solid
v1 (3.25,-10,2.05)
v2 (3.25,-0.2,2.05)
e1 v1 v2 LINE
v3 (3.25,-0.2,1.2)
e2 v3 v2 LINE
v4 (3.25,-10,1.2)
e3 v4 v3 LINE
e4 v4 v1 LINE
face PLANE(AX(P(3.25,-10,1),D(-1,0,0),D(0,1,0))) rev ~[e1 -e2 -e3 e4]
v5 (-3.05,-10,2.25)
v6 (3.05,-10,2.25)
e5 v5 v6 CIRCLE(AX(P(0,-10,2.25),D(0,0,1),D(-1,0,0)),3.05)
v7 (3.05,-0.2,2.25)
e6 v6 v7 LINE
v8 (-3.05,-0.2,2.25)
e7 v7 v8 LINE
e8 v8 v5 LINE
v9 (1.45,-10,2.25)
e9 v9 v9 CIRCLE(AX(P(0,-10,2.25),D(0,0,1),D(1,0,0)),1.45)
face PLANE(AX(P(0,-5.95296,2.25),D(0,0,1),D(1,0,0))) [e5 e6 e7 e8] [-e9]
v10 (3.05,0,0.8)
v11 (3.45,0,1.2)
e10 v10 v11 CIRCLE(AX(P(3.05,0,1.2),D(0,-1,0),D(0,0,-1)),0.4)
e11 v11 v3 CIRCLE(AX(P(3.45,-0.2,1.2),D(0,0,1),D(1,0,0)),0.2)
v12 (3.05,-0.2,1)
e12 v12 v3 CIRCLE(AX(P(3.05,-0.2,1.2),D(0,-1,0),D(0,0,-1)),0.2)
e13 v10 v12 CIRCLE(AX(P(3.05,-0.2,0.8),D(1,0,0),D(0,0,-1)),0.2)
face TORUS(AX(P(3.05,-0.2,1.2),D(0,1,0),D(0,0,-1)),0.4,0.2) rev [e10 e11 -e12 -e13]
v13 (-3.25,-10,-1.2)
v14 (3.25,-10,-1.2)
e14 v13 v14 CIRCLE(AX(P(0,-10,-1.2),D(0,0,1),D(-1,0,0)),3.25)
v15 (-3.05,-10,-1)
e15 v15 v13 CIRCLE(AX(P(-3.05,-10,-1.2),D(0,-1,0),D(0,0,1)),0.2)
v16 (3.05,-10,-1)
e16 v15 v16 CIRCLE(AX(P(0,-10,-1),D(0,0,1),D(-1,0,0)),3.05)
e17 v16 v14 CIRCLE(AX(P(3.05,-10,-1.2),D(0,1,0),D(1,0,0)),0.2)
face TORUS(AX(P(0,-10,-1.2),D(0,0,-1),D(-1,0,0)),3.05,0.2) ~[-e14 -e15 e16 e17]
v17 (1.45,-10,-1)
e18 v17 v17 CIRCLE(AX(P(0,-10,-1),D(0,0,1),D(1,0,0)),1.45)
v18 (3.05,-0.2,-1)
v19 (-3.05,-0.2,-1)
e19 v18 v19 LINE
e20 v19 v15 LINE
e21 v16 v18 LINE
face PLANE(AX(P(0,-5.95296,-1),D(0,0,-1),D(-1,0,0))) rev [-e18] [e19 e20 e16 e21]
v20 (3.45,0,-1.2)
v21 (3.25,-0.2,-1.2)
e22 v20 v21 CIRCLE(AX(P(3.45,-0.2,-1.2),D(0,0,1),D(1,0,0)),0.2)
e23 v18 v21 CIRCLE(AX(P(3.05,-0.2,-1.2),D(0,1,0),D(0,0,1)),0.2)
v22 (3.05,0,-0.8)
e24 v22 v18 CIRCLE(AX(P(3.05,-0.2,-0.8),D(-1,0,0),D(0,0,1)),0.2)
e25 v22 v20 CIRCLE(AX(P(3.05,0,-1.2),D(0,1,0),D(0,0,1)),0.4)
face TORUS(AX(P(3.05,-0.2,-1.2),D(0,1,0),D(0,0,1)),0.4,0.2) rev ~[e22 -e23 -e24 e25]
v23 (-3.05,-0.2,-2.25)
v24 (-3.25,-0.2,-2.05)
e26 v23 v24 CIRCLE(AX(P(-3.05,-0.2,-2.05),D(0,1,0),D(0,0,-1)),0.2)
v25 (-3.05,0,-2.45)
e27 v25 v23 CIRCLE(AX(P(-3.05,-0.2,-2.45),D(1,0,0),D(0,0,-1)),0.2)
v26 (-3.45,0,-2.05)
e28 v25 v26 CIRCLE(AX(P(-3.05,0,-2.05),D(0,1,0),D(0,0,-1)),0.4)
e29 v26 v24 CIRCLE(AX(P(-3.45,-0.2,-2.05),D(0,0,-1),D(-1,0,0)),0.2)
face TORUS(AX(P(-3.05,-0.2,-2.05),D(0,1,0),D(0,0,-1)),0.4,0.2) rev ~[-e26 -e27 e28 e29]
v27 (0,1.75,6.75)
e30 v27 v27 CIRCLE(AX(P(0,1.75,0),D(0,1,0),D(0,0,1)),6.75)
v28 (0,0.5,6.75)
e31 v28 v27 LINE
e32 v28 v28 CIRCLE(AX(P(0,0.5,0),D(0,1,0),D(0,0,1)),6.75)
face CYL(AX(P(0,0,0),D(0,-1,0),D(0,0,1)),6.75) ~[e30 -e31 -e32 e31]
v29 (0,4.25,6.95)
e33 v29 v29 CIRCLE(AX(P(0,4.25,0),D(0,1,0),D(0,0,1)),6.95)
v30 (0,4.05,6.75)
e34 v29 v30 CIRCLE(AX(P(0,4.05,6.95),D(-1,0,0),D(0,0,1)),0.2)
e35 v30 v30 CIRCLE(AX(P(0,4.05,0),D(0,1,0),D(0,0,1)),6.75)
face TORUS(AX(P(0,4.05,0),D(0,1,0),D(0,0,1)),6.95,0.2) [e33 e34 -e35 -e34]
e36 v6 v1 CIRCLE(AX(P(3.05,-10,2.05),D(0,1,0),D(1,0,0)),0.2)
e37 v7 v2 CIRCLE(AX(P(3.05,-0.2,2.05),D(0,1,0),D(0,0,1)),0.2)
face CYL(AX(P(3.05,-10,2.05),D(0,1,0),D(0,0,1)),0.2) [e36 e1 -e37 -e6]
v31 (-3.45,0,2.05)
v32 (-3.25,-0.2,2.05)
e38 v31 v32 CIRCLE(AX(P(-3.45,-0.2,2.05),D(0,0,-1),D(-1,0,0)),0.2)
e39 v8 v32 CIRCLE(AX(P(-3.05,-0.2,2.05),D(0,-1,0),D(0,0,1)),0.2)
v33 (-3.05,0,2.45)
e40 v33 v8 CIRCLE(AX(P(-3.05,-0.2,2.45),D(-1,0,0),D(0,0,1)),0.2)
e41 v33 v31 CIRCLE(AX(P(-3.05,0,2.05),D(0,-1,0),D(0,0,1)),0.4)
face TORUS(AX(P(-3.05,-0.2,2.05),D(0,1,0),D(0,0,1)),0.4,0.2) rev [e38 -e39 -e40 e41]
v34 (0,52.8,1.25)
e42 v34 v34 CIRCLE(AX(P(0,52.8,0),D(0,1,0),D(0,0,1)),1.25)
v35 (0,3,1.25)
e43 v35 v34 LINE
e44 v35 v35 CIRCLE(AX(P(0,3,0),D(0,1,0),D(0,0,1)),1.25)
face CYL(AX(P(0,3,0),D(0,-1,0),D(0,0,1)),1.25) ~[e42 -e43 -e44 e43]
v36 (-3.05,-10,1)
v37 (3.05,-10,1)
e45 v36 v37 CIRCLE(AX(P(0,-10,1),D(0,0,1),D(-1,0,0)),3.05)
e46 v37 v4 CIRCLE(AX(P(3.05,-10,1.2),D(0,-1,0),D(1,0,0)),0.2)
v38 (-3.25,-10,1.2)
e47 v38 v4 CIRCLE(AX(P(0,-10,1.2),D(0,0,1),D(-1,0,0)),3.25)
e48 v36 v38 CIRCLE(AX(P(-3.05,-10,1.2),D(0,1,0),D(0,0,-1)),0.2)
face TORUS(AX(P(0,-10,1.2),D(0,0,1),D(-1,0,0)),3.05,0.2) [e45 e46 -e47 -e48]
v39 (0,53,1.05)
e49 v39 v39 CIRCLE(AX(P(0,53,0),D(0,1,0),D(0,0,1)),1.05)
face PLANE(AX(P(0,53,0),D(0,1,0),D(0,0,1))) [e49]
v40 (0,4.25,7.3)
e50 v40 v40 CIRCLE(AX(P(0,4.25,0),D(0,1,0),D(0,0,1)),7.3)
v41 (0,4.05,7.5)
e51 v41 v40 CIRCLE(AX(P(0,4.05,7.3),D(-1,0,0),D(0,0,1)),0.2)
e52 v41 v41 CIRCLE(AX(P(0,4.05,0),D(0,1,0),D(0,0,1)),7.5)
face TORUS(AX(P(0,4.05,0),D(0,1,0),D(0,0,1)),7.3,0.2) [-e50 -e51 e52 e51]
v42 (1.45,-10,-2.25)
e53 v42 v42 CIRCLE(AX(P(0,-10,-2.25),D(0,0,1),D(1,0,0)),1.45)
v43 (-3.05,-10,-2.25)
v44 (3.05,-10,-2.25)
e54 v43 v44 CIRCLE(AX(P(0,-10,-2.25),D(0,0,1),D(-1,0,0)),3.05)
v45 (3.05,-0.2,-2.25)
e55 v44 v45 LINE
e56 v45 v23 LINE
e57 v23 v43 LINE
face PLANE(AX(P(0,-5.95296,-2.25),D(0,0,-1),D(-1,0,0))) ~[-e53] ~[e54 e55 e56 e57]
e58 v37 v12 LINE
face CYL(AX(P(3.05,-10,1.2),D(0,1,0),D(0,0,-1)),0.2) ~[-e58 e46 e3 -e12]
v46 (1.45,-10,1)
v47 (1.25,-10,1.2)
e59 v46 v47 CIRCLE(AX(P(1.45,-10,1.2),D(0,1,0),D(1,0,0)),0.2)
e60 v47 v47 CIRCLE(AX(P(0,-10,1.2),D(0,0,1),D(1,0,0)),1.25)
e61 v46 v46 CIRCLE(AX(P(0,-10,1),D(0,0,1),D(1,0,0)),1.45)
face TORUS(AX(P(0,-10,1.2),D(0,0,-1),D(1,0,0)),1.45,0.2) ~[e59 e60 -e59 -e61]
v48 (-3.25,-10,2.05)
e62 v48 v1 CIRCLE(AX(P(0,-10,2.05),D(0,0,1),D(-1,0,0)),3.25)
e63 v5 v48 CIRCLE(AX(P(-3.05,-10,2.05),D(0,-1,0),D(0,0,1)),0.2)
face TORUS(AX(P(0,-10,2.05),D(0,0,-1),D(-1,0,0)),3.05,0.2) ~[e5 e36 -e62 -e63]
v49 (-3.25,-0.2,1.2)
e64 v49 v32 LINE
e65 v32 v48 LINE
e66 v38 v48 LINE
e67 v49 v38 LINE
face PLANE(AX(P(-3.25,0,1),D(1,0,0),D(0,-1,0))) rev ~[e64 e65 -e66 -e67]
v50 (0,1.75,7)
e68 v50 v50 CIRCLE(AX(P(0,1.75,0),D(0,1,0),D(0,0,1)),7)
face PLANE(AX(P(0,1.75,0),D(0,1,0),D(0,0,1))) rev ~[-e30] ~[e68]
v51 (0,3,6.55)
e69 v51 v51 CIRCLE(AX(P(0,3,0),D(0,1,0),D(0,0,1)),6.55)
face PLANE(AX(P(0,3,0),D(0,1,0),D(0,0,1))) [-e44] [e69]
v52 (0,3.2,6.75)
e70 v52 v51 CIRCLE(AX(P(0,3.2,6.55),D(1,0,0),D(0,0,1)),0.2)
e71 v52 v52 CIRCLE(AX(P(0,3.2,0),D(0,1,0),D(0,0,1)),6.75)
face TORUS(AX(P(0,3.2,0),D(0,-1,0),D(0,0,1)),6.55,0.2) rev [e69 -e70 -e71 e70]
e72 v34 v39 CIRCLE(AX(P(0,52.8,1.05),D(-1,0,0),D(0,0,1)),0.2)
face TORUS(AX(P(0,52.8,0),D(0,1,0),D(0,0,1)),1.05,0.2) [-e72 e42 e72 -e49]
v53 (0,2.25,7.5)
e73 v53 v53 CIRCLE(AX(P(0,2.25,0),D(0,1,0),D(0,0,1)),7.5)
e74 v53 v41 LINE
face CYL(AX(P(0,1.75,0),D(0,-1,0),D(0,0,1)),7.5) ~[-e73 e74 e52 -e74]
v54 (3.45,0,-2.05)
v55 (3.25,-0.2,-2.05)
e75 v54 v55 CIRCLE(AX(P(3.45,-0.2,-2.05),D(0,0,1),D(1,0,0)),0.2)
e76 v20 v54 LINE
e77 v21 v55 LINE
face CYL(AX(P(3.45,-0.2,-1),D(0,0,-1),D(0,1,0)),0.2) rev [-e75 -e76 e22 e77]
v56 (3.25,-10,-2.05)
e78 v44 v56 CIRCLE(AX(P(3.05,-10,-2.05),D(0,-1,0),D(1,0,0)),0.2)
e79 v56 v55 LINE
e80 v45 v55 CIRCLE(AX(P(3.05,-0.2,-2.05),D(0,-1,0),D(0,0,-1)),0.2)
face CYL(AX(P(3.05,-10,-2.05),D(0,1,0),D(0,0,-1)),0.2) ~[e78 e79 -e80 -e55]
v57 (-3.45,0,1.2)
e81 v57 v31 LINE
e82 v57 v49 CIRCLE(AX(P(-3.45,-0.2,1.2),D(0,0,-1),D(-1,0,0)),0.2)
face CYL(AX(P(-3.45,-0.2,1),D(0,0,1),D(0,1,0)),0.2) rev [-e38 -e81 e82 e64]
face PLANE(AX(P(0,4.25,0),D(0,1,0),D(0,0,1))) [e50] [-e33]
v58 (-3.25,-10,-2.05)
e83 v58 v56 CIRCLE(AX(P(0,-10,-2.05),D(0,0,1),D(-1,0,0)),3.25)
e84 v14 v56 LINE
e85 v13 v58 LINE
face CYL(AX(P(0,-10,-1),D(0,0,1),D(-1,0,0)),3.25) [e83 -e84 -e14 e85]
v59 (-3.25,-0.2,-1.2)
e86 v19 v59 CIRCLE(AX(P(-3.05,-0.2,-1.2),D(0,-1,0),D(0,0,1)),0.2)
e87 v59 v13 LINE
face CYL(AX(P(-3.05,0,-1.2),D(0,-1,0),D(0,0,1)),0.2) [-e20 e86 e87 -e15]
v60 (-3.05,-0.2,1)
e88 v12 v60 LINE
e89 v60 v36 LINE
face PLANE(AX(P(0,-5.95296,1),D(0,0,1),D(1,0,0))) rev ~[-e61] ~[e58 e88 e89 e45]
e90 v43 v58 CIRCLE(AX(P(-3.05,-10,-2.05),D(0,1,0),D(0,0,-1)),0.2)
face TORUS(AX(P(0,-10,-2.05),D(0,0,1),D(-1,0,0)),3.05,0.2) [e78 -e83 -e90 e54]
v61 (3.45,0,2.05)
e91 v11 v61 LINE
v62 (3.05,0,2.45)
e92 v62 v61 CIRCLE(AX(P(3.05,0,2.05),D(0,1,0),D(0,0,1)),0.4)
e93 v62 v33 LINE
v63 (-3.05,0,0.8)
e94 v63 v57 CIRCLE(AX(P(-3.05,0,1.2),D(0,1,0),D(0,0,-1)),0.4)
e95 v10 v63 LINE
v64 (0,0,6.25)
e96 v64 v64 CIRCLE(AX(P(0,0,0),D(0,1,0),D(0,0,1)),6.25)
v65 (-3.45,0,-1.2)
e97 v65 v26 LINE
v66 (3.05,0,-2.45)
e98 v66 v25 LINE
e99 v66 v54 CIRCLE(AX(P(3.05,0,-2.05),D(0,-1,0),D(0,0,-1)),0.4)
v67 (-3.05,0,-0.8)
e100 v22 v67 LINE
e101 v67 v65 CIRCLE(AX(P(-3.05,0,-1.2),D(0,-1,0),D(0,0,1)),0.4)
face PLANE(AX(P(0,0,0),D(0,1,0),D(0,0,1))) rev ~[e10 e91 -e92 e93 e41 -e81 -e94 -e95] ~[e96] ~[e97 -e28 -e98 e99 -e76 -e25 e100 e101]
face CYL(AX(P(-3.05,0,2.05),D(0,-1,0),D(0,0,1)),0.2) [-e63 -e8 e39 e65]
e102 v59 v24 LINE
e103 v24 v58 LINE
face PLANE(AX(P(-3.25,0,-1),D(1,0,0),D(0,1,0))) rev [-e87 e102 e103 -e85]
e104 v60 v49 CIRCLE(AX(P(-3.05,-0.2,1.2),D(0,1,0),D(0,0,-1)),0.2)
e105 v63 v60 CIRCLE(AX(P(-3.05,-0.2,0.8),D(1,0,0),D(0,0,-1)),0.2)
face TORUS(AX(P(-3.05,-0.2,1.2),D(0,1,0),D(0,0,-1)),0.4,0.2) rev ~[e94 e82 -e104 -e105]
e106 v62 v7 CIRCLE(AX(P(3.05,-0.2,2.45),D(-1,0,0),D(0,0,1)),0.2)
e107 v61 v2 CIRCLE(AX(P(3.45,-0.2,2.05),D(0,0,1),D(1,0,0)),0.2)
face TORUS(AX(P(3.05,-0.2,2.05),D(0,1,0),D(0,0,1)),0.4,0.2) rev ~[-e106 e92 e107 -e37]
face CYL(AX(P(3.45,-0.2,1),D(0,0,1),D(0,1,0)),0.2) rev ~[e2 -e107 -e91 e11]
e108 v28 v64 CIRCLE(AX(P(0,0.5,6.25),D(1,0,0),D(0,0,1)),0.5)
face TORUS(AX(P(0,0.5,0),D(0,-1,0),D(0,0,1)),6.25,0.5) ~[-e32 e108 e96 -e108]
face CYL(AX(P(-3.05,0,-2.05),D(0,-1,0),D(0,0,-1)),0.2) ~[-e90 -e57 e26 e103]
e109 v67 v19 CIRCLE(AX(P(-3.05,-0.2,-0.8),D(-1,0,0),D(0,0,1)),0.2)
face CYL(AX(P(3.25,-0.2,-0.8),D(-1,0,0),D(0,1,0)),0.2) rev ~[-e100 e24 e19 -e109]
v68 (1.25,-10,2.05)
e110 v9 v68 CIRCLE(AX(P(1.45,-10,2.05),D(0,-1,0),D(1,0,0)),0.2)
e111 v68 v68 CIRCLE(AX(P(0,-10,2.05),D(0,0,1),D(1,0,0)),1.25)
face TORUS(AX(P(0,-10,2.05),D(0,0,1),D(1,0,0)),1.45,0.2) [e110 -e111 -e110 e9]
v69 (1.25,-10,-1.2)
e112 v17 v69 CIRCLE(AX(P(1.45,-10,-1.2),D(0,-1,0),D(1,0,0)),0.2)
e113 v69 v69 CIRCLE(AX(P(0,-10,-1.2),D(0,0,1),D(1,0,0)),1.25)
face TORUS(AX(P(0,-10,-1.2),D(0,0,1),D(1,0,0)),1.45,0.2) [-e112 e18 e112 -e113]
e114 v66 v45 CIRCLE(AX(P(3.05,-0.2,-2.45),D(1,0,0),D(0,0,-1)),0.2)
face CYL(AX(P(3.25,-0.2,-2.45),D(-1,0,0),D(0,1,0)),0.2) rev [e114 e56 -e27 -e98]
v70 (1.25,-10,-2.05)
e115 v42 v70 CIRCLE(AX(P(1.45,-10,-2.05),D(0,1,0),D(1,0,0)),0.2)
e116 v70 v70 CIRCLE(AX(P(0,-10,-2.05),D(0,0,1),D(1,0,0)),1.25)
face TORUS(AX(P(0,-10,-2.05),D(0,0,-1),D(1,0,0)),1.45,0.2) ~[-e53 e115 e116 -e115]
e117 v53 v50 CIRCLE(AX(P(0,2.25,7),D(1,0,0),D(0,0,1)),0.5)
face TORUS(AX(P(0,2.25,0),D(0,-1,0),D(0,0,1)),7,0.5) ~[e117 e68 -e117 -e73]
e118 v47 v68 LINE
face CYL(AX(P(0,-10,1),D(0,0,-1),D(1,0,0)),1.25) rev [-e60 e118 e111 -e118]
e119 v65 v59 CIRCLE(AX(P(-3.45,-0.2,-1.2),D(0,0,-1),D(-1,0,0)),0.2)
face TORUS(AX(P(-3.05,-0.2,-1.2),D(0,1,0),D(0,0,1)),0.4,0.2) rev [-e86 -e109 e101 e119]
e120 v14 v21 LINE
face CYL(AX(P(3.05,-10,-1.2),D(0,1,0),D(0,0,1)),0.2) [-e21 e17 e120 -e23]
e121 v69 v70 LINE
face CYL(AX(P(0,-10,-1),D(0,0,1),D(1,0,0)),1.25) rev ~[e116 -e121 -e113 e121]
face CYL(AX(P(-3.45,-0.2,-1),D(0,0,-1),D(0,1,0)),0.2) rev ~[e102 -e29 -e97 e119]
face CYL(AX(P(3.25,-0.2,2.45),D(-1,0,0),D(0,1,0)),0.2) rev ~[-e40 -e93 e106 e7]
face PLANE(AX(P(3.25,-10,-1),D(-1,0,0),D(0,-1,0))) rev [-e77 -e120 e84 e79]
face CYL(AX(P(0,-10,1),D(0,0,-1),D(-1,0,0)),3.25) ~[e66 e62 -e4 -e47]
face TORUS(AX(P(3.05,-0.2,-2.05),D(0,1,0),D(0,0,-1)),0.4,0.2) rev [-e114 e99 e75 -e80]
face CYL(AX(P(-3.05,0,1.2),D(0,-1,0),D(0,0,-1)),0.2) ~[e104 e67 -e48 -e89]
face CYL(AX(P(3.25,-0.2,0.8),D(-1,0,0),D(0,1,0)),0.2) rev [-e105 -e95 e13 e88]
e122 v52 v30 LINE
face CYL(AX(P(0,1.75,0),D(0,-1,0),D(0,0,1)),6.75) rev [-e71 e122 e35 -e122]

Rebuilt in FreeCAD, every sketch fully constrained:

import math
import FreeCAD as App
import Part
import Sketcher
from FreeCAD import Vector
Q = App.Units.Quantity


def edges_at(feature, points):
    """Names of the edges that pass closest to the given points."""
    edges = feature.Shape.Edges
    near = lambda p: min(range(len(edges)), key=lambda i: edges[i].distToShape(Part.Vertex(*p))[0])
    return sorted({f"Edge{near(p) + 1}" for p in points})

doc = App.newDocument("Part")
params = doc.addObject("Spreadsheet::Sheet", "Params")
for row, (alias, value) in enumerate([
    ("sketch1_diameter", "13.5 mm"),
    ("pad1_length", "3 mm"),
    ("sketch2_diameter", "2.5 mm"),
    ("pad2_length", "50 mm"),
    ("sketch3_diameter", "2.5 mm"),
    ("sketch3_height", "10 mm"),
    ("sketch3_radius", "3.25 mm"),
    ("pad3_length", "1.25 mm"),
    ("sketch4_diameter", "15 mm"),
    ("sketch4_diameter2", "13.5 mm"),
    ("pad4_length", "1.25 mm"),
    ("pad4_length2", "1.25 mm"),
    ("fillet_radius", "0.5 mm"),
    ("fillet2_radius", "0.2 mm"),
    ("fillet3_radius", "0.2 mm"),
    ("fillet4_radius", "0.2 mm"),
], start=1):
    params.set(f"A{row}", alias)
    params.set(f"B{row}", "=" + value)
    params.setAlias(f"B{row}", alias)

body = doc.addObject("PartDesign::Body", "Body")

# Sketch on XZ plane
sketch1 = body.newObject("Sketcher::SketchObject", "Sketch")
sketch1.AttachmentSupport = (doc.getObject("XZ_Plane"), [""])
sketch1.MapMode = "FlatFace"
sketch1.addGeometry(Part.Circle(Vector(0, 0, 0), Vector(0, 0, 1), 7), False)
sketch1.addConstraint([
    Sketcher.Constraint("Coincident", 0, 3, -1, 1),
    Sketcher.Constraint("Diameter", 0, Q("13.5 mm")),
])
sketch1.setExpression("Constraints[1]", "Params.sketch1_diameter")
pad1 = body.newObject("PartDesign::Pad", "Pad")
pad1.Profile = sketch1
pad1.setExpression("Length", "Params.pad1_length")
pad1.Reversed = True

# Sketch on XZ plane
sketch2 = body.newObject("Sketcher::SketchObject", "Sketch001")
sketch2.AttachmentSupport = (doc.getObject("XZ_Plane"), [""])
sketch2.MapMode = "FlatFace"
sketch2.AttachmentOffset = App.Placement(Vector(0, 0, -3), App.Rotation())
sketch2.addGeometry(Part.Circle(Vector(0, 0, 0), Vector(0, 0, 1), 1.2), False)
sketch2.addConstraint([
    Sketcher.Constraint("Coincident", 0, 3, -1, 1),
    Sketcher.Constraint("Diameter", 0, Q("2.5 mm")),
])
sketch2.setExpression("Constraints[1]", "Params.sketch2_diameter")
pad2 = body.newObject("PartDesign::Pad", "Pad001")
pad2.Profile = sketch2
pad2.setExpression("Length", "Params.pad2_length")
pad2.Reversed = True

# Sketch on XY plane
sketch3 = body.newObject("Sketcher::SketchObject", "Sketch002")
sketch3.AttachmentSupport = (doc.getObject("XY_Plane"), [""])
sketch3.MapMode = "FlatFace"
sketch3.AttachmentOffset = App.Placement(Vector(0, 0, 1), App.Rotation())
sketch3.addGeometry([
    Part.LineSegment(Vector(3.2, -10, 0), Vector(3.2, 0, 0)),  # 0
    Part.LineSegment(Vector(3.2, 0, 0), Vector(-3.2, 0, 0)),  # 1
    Part.LineSegment(Vector(-3.2, 0, 0), Vector(-3.2, -10, 0)),  # 2
    Part.ArcOfCircle(Part.Circle(Vector(0, -10, 0), Vector(0, 0, 1), 3.2), math.radians(180), math.radians(360)),  # 3
    Part.Circle(Vector(0, -10, 0), Vector(0, 0, 1), 1.2),  # 4
], False)
sketch3.addConstraint([
    Sketcher.Constraint("Coincident", 0, 2, 1, 1),
    Sketcher.Constraint("Coincident", 1, 2, 2, 1),
    Sketcher.Constraint("Tangent", 2, 2, 3, 1),
    Sketcher.Constraint("Tangent", 3, 2, 0, 1),
    Sketcher.Constraint("Vertical", 0),
    Sketcher.Constraint("Horizontal", 1),
    Sketcher.Constraint("Vertical", 2),
    Sketcher.Constraint("Coincident", 4, 3, 3, 3),
    Sketcher.Constraint("Symmetric", 0, 2, 1, 2, -1, 1),
    Sketcher.Constraint("Diameter", 4, Q("2.5 mm")),
    Sketcher.Constraint("DistanceY", 0, 1, 0, 2, Q("10 mm")),
    Sketcher.Constraint("Radius", 3, Q("3.25 mm")),
])
sketch3.setExpression("Constraints[9]", "Params.sketch3_diameter")
sketch3.setExpression("Constraints[10]", "Params.sketch3_height")
sketch3.setExpression("Constraints[11]", "Params.sketch3_radius")
pad3 = body.newObject("PartDesign::Pad", "Pad002")
pad3.Profile = sketch3
pad3.setExpression("Length", "Params.pad3_length")
doc.recompute()

mirrored = body.newObject("PartDesign::Mirrored", "Mirrored")
mirrored.Originals = [pad3]
mirrored.MirrorPlane = (doc.getObject("XY_Plane"), [""])
body.Tip = mirrored

# Sketch on XZ plane
sketch4 = body.newObject("Sketcher::SketchObject", "Sketch003")
sketch4.AttachmentSupport = (doc.getObject("XZ_Plane"), [""])
sketch4.MapMode = "FlatFace"
sketch4.AttachmentOffset = App.Placement(Vector(0, 0, -3), App.Rotation())
sketch4.addGeometry([
    Part.Circle(Vector(0, 0, 0), Vector(0, 0, 1), 8),
    Part.Circle(Vector(0, 0, 0), Vector(0, 0, 1), 7),
], False)
sketch4.addConstraint([
    Sketcher.Constraint("Coincident", 0, 3, -1, 1),
    Sketcher.Constraint("Coincident", 1, 3, -1, 1),
    Sketcher.Constraint("Diameter", 0, Q("15 mm")),
    Sketcher.Constraint("Diameter", 1, Q("13.5 mm")),
])
sketch4.setExpression("Constraints[2]", "Params.sketch4_diameter")
sketch4.setExpression("Constraints[3]", "Params.sketch4_diameter2")
pad4 = body.newObject("PartDesign::Pad", "Pad003")
pad4.Profile = sketch4
pad4.Type = "TwoLengths"
pad4.setExpression("Length", "Params.pad4_length")
pad4.setExpression("Length2", "Params.pad4_length2")
pad4.Reversed = True
doc.recompute()

fillet = body.newObject("PartDesign::Fillet", "Fillet")
fillet.Base = (pad4, edges_at(pad4, [(0, 0, -6.75), (0, 1.75, -7.5)]))
fillet.setExpression("Radius", "Params.fillet_radius")
doc.recompute()

fillet2 = body.newObject("PartDesign::Fillet", "Fillet001")
fillet2.Base = (fillet, edges_at(fillet, [
    (0, -13.25, 2.25),
    (3.25, -5, 2.25),
    (0, 0, 2.25),
    (-3.25, -5, 2.25),
    (-1.25, -10, 1),
    (0, -13.25, 1),
    (3.25, -5, 1),
    (0, 0, 1),
    (3.25, 0, 1.625),
    (-3.25, -5, 1),
    (-3.25, 0, 1.625),
    (-1.25, -10, 2.25),
    (0, -13.25, -2.25),
    (-3.25, -5, -2.25),
    (0, 0, -2.25),
    (-3.25, 0, -1.625),
    (3.25, -5, -2.25),
    (3.25, 0, -1.625),
    (-1.25, -10, -2.25),
    (0, -13.25, -1),
    (3.25, -5, -1),
    (0, 0, -1),
    (-3.25, -5, -1),
    (-1.25, -10, -1),
]))
fillet2.setExpression("Radius", "Params.fillet2_radius")
doc.recompute()

fillet3 = body.newObject("PartDesign::Fillet", "Fillet002")
fillet3.Base = (fillet2, edges_at(fillet2, [(0, 3, -6.75), (0, 4.25, -6.75), (0, 4.25, -7.5)]))
fillet3.setExpression("Radius", "Params.fillet3_radius")
doc.recompute()

fillet4 = body.newObject("PartDesign::Fillet", "Fillet003")
fillet4.Base = (fillet3, edges_at(fillet3, [(0, 53, -1.25)]))
fillet4.setExpression("Radius", "Params.fillet4_radius")

doc.recompute()
